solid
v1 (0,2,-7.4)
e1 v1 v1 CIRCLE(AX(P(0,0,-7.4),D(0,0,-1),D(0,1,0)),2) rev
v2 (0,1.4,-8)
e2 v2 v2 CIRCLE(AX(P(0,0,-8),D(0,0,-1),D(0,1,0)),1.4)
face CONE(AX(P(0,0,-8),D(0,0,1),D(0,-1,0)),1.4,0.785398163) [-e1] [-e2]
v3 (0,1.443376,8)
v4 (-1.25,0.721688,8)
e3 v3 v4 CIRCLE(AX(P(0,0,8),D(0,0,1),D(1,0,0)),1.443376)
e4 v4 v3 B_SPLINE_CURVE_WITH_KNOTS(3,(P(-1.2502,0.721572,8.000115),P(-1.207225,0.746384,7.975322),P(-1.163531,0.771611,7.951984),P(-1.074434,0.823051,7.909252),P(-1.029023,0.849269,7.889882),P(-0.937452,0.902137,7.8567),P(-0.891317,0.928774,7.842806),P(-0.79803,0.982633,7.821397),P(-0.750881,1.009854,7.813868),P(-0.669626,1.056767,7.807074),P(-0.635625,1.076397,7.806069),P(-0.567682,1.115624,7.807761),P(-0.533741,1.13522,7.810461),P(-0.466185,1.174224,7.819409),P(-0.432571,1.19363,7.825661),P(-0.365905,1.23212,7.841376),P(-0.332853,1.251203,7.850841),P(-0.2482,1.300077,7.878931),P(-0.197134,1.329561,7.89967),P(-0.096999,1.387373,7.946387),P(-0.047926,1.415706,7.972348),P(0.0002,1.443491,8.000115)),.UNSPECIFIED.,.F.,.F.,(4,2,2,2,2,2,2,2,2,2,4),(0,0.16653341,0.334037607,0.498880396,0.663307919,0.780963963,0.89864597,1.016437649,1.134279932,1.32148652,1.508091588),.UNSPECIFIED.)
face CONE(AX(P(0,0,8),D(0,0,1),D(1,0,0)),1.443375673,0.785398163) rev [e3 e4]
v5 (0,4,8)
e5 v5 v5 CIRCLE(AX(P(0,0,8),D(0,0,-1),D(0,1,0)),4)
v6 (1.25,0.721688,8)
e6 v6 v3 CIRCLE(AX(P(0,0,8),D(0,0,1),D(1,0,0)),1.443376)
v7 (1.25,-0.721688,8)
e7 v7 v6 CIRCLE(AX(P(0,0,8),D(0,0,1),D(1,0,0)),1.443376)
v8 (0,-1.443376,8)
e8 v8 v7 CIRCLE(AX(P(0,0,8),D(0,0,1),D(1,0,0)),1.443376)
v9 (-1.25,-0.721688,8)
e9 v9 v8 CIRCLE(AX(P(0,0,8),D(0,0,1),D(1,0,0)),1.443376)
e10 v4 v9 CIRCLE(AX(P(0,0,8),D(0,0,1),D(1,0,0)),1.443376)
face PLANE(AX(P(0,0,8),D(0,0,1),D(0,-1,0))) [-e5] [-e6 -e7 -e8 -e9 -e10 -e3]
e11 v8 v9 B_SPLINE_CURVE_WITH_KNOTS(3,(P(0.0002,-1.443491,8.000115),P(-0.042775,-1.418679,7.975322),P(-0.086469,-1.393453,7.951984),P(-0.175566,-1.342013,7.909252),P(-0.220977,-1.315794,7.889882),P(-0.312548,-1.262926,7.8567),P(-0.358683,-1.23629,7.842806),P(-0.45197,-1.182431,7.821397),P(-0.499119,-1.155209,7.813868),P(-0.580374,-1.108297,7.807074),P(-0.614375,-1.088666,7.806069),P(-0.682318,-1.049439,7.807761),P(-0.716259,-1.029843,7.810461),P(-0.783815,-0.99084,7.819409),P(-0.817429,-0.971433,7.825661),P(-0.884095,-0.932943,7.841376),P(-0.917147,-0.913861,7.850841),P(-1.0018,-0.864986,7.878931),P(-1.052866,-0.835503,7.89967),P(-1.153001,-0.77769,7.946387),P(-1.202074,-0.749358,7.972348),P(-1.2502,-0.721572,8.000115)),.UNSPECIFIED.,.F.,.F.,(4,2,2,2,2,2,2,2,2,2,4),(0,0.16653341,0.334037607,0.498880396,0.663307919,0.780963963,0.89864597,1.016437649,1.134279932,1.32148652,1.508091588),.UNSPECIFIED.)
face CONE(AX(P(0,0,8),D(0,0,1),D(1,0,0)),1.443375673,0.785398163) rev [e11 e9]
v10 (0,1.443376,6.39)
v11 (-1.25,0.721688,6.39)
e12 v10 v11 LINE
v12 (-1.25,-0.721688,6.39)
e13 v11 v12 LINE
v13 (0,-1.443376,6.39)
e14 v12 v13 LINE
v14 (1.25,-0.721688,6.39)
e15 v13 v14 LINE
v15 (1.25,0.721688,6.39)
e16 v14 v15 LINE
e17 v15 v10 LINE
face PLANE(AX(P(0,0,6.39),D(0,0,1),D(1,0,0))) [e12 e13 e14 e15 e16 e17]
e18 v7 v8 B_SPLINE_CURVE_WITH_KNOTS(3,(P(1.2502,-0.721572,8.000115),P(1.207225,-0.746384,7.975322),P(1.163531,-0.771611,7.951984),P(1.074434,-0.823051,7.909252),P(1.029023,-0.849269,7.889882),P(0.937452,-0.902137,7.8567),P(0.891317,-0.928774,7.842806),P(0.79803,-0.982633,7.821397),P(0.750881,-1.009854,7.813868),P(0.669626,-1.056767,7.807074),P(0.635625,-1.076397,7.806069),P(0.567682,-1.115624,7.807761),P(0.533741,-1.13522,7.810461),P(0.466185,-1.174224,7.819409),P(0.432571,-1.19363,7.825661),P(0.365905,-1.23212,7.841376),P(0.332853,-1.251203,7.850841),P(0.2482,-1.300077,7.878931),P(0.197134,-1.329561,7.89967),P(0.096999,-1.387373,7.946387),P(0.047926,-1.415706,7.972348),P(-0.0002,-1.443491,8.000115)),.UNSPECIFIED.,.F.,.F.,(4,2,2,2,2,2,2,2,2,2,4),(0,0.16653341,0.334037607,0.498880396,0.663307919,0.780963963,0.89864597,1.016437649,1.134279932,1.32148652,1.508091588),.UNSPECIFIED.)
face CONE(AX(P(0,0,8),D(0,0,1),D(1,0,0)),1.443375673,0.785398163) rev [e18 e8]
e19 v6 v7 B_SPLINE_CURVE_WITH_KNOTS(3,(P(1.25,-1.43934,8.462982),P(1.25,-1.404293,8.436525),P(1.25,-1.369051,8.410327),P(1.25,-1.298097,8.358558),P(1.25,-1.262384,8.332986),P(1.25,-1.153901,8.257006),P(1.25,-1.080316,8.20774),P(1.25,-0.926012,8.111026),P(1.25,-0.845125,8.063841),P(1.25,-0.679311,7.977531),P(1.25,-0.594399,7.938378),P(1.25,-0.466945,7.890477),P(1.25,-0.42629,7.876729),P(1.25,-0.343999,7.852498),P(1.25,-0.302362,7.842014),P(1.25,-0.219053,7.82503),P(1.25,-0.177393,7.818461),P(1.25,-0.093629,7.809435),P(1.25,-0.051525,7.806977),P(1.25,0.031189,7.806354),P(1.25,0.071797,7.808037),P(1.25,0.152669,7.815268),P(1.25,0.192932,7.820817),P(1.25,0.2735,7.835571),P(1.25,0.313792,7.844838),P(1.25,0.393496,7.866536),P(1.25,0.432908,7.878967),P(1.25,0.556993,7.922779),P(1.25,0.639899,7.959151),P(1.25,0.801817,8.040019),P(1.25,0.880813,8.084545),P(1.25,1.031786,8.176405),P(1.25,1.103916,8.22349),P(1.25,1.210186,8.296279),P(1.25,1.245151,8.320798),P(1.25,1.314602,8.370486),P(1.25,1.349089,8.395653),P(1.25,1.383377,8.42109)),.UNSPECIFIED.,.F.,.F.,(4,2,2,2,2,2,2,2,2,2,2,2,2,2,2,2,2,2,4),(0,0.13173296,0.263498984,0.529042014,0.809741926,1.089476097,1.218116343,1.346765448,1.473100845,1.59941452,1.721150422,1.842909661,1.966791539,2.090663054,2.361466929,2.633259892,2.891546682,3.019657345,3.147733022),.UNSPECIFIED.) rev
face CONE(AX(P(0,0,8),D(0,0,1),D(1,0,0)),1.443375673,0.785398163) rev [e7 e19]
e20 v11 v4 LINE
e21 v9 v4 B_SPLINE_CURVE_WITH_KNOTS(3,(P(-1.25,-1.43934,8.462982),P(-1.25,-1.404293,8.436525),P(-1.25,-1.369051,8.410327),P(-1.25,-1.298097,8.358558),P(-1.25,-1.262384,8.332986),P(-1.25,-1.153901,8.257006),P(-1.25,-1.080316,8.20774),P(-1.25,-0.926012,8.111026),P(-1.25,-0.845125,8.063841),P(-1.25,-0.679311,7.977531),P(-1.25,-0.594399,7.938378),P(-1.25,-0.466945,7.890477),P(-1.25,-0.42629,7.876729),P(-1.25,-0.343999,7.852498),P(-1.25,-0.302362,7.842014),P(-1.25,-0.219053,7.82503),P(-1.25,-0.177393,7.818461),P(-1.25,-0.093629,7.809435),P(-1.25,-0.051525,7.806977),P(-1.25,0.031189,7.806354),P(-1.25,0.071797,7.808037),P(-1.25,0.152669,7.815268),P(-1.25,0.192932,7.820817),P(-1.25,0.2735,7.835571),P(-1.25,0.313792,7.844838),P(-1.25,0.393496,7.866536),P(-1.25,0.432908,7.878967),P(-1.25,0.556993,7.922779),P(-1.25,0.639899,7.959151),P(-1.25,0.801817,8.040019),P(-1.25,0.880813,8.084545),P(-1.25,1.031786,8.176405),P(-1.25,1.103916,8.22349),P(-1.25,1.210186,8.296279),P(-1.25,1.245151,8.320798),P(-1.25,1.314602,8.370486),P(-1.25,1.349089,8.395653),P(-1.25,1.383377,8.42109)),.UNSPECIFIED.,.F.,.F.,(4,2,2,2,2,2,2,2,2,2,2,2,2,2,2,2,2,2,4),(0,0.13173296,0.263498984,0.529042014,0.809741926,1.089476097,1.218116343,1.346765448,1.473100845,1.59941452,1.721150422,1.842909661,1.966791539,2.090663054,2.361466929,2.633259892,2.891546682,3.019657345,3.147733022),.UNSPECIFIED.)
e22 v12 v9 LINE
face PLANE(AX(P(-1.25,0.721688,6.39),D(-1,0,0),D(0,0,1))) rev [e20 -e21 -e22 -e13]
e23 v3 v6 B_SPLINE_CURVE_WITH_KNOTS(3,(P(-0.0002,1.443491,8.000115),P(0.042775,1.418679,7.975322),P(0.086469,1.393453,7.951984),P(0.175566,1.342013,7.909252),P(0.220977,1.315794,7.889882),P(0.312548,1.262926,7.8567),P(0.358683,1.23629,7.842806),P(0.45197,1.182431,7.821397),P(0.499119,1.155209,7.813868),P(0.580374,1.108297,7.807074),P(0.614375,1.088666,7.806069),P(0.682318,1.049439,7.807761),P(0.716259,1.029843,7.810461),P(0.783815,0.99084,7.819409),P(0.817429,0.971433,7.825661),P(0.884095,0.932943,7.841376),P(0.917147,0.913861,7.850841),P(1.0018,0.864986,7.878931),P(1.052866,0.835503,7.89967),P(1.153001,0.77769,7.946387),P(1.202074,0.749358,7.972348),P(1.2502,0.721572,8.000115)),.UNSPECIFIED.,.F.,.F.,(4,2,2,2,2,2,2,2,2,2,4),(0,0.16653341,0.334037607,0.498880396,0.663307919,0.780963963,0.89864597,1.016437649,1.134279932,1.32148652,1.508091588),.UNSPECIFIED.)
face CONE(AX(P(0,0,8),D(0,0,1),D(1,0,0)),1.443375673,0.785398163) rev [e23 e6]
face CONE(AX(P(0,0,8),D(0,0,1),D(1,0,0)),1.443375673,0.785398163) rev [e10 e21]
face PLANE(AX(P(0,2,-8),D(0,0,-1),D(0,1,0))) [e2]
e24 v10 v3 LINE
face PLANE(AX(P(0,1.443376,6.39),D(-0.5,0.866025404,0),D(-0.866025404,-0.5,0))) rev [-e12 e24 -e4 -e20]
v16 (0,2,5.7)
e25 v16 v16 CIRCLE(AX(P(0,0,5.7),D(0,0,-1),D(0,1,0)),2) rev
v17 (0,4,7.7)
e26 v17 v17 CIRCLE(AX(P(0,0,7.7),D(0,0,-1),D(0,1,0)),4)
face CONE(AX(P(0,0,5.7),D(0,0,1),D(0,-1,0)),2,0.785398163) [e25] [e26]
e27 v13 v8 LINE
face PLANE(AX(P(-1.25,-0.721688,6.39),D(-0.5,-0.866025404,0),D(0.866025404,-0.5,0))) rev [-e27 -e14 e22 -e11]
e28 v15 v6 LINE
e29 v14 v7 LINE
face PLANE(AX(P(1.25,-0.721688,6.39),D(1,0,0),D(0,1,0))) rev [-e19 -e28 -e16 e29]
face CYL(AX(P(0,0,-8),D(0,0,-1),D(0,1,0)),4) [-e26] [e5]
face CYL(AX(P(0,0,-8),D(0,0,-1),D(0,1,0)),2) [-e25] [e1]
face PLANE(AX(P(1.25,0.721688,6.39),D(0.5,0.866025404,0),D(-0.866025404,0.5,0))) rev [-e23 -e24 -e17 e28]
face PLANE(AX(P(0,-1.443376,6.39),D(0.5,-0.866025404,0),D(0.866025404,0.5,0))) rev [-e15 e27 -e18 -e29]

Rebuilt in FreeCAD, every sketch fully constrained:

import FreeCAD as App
import Part
import Sketcher
Q = App.Units.Quantity


def edges_at(feature, points):
    """Names of the edges that pass closest to the given points."""
    edges = feature.Shape.Edges
    near = lambda p: min(range(len(edges)), key=lambda i: edges[i].distToShape(Part.Vertex(*p))[0])
    return sorted({f"Edge{near(p) + 1}" for p in points})


def faces_at(feature, points):
    """Names of the faces that lie closest to the given points."""
    faces = feature.Shape.Faces
    near = lambda p: min(range(len(faces)), key=lambda i: faces[i].distToShape(Part.Vertex(*p))[0])
    return sorted({f"Face{near(p) + 1}" for p in points})

doc = App.newDocument("Part")
params = doc.addObject("Spreadsheet::Sheet", "Params")
for row, (alias, value) in enumerate([
    ("sketch1_width", "2 mm"),
    ("sketch1_height", "16 mm"),
    ("revolution_angle", "360 deg"),
    ("chamfer_size", "0.6 mm"),
    ("sketch2_width", "4 mm"),
    ("sketch2_width2", "2 mm"),
    ("sketch2_height", "0.3 mm"),
    ("revolution2_angle", "360 deg"),
    ("pocket1_length", "1.61 mm"),
    ("pad1_length", "1.61 mm"),
    ("draft_angle", "45 deg"),
], start=1):
    params.set(f"A{row}", alias)
    params.set(f"B{row}", "=" + value)
    params.setAlias(f"B{row}", alias)

body = doc.addObject("PartDesign::Body", "Body")

# Sketch on YZ plane
sketch1 = body.newObject("Sketcher::SketchObject", "Sketch")
sketch1.AttachmentSupport = (doc.getObject("YZ_Plane"), [""])
sketch1.MapMode = "FlatFace"
sketch1.addGeometry(Part.LineSegment(App.Vector(2, 8, 0), App.Vector(0, 8, 0)), False)
sketch1.addGeometry(Part.LineSegment(App.Vector(0, 8, 0), App.Vector(0, -8, 0)), False)
sketch1.addGeometry(Part.LineSegment(App.Vector(0, -8, 0), App.Vector(2, -8, 0)), False)
sketch1.addGeometry(Part.LineSegment(App.Vector(2, -8, 0), App.Vector(2, 8, 0)), False)
sketch1.addConstraint(Sketcher.Constraint("Coincident", 0, 2, 1, 1))
sketch1.addConstraint(Sketcher.Constraint("Coincident", 1, 2, 2, 1))
sketch1.addConstraint(Sketcher.Constraint("Coincident", 2, 2, 3, 1))
sketch1.addConstraint(Sketcher.Constraint("Coincident", 3, 2, 0, 1))
sketch1.addConstraint(Sketcher.Constraint("Horizontal", 0))
sketch1.addConstraint(Sketcher.Constraint("Vertical", 1))
sketch1.addConstraint(Sketcher.Constraint("Horizontal", 2))
sketch1.addConstraint(Sketcher.Constraint("Vertical", 3))
sketch1.addConstraint(Sketcher.Constraint("Symmetric", 0, 2, 1, 2, -1, 1))
sketch1.addConstraint(Sketcher.Constraint("DistanceX", 0, 2, 0, 1, Q("2 mm")))
sketch1.addConstraint(Sketcher.Constraint("DistanceY", 1, 2, 1, 1, Q("16 mm")))
sketch1.setExpression("Constraints[9]", "Params.sketch1_width")
sketch1.setExpression("Constraints[10]", "Params.sketch1_height")
revolution = body.newObject("PartDesign::Revolution", "Revolution")
revolution.Profile = sketch1
revolution.ReferenceAxis = (sketch1, ["V_Axis"])
revolution.setExpression("Angle", "Params.revolution_angle")
doc.recompute()

chamfer = body.newObject("PartDesign::Chamfer", "Chamfer")
chamfer.Base = (revolution, edges_at(revolution, [(0, -2, -8)]))
chamfer.setExpression("Size", "Params.chamfer_size")

# Sketch on YZ plane
sketch2 = body.newObject("Sketcher::SketchObject", "Sketch001")
sketch2.AttachmentSupport = (doc.getObject("YZ_Plane"), [""])
sketch2.MapMode = "FlatFace"
sketch2.addGeometry(Part.LineSegment(App.Vector(4, 7.7, 0), App.Vector(4, 8, 0)), False)
sketch2.addGeometry(Part.LineSegment(App.Vector(4, 8, 0), App.Vector(0, 8, 0)), False)
sketch2.addGeometry(Part.LineSegment(App.Vector(0, 8, 0), App.Vector(0, 5.7, 0)), False)
sketch2.addGeometry(Part.LineSegment(App.Vector(0, 5.7, 0), App.Vector(2, 5.7, 0)), False)
sketch2.addGeometry(Part.LineSegment(App.Vector(2, 5.7, 0), App.Vector(4, 7.7, 0)), False)
sketch2.addConstraint(Sketcher.Constraint("Coincident", 0, 2, 1, 1))
sketch2.addConstraint(Sketcher.Constraint("Coincident", 1, 2, 2, 1))
sketch2.addConstraint(Sketcher.Constraint("Coincident", 2, 2, 3, 1))
sketch2.addConstraint(Sketcher.Constraint("Coincident", 3, 2, 4, 1))
sketch2.addConstraint(Sketcher.Constraint("Coincident", 4, 2, 0, 1))
sketch2.addConstraint(Sketcher.Constraint("Vertical", 0))
sketch2.addConstraint(Sketcher.Constraint("Horizontal", 1))
sketch2.addConstraint(Sketcher.Constraint("Vertical", 2))
sketch2.addConstraint(Sketcher.Constraint("Horizontal", 3))
sketch2.addConstraint(Sketcher.Constraint("PointOnObject", 1, 2, -2))
sketch2.addConstraint(Sketcher.Constraint("DistanceX", 1, 2, 1, 1, Q("4 mm")))
sketch2.addConstraint(Sketcher.Constraint("DistanceX", 3, 1, 3, 2, Q("2 mm")))
sketch2.addConstraint(Sketcher.Constraint("Angle", 4, Q("45 deg")))
sketch2.addConstraint(Sketcher.Constraint("DistanceY", 0, 1, 0, 2, Q("0.3 mm")))
sketch2.addConstraint(Sketcher.Constraint("DistanceY", -1, 1, 0, 2, Q("8 mm")))
sketch2.setExpression("Constraints[10]", "Params.sketch2_width")
sketch2.setExpression("Constraints[11]", "Params.sketch2_width2")
sketch2.setExpression("Constraints[13]", "Params.sketch2_height")
revolution2 = body.newObject("PartDesign::Revolution", "Revolution001")
revolution2.Profile = sketch2
revolution2.ReferenceAxis = (sketch2, ["V_Axis"])
revolution2.setExpression("Angle", "Params.revolution2_angle")

# Sketch on XY plane
sketch3 = body.newObject("Sketcher::SketchObject", "Sketch002")
sketch3.AttachmentSupport = (doc.getObject("XY_Plane"), [""])
sketch3.MapMode = "FlatFace"
sketch3.AttachmentOffset = App.Placement(App.Vector(0, 0, 8), App.Rotation())
sketch3.addGeometry(Part.LineSegment(App.Vector(0, 1.4, 0), App.Vector(-1.2, 0.7, 0)), False)
sketch3.addGeometry(Part.LineSegment(App.Vector(-1.2, 0.7, 0), App.Vector(-1.2, -0.7, 0)), False)
sketch3.addGeometry(Part.LineSegment(App.Vector(-1.2, -0.7, 0), App.Vector(0, -1.4, 0)), False)
sketch3.addGeometry(Part.LineSegment(App.Vector(0, -1.4, 0), App.Vector(1.2, -0.7, 0)), False)
sketch3.addGeometry(Part.LineSegment(App.Vector(1.2, -0.7, 0), App.Vector(1.2, 0.7, 0)), False)
sketch3.addGeometry(Part.LineSegment(App.Vector(1.2, 0.7, 0), App.Vector(0, 1.4, 0)), False)
sketch3.addConstraint(Sketcher.Constraint("Coincident", 0, 2, 1, 1))
sketch3.addConstraint(Sketcher.Constraint("Coincident", 1, 2, 2, 1))
sketch3.addConstraint(Sketcher.Constraint("Coincident", 2, 2, 3, 1))
sketch3.addConstraint(Sketcher.Constraint("Coincident", 3, 2, 4, 1))
sketch3.addConstraint(Sketcher.Constraint("Coincident", 4, 2, 5, 1))
sketch3.addConstraint(Sketcher.Constraint("Coincident", 5, 2, 0, 1))
sketch3.addConstraint(Sketcher.Constraint("Vertical", 1))
sketch3.addConstraint(Sketcher.Constraint("Vertical", 4))
sketch3.addConstraint(Sketcher.Constraint("Symmetric", 0, 2, 3, 2, -1, 1))
sketch3.addConstraint(Sketcher.Constraint("Symmetric", 2, 2, 5, 2, -1, 1))
sketch3.addConstraint(Sketcher.Constraint("PointOnObject", 2, 2, -2))
sketch3.addConstraint(Sketcher.Constraint("Parallel", 2, 5))
sketch3.addConstraint(Sketcher.Constraint("Horizontal", 1, 2, 3, 2))
sketch3.addConstraint(Sketcher.Constraint("Angle", 0, Q("-150 deg")))
sketch3.addConstraint(Sketcher.Constraint("DistanceX", 1, 2, 3, 2, Q("2.5 mm")))
sketch3.addConstraint(Sketcher.Constraint("DistanceY", 1, 2, 1, 1, Q("1.443376 mm")))
pocket1 = body.newObject("PartDesign::Pocket", "Pocket")
pocket1.Profile = sketch3
pocket1.setExpression("Length", "Params.pocket1_length")
body2 = doc.addObject("PartDesign::Body", "Body001")

# Sketch on XY plane
sketch4 = body2.newObject("Sketcher::SketchObject", "Sketch003")
sketch4.AttachmentSupport = (doc.getObject("XY_Plane001"), [""])
sketch4.MapMode = "FlatFace"
sketch4.AttachmentOffset = App.Placement(App.Vector(0, 0, 8), App.Rotation())
sketch4.addGeometry(Part.Circle(App.Vector(0, 0, 0), App.Vector(0, 0, 1), 1.4), False)
sketch4.addConstraint(Sketcher.Constraint("Coincident", 0, 3, -1, 1))
sketch4.addConstraint(Sketcher.Constraint("Diameter", 0, Q("2.886751 mm")))
pad1 = body2.newObject("PartDesign::Pad", "Pad")
pad1.Profile = sketch4
pad1.setExpression("Length", "Params.pad1_length")
pad1.Reversed = True
doc.recompute()

datumplane = body2.newObject("PartDesign::Plane", "DatumPlane")
datumplane.AttachmentSupport = (doc.getObject("XY_Plane001"), [""])
datumplane.MapMode = "FlatFace"
datumplane.AttachmentOffset = App.Placement(App.Vector(0, 0, 8), App.Rotation())
draft = body2.newObject("PartDesign::Draft", "Draft")
draft.Base = (pad1, faces_at(pad1, [(-1.443, 0, 7.195)]))
draft.NeutralPlane = (datumplane, [""])
draft.setExpression("Angle", "Params.draft_angle")
draft.Reversed = True
doc.recompute()

boolean = body.newObject("PartDesign::Boolean", "Boolean")
boolean.Type = "Cut"
boolean.addObjects([body2])

doc.recompute()
